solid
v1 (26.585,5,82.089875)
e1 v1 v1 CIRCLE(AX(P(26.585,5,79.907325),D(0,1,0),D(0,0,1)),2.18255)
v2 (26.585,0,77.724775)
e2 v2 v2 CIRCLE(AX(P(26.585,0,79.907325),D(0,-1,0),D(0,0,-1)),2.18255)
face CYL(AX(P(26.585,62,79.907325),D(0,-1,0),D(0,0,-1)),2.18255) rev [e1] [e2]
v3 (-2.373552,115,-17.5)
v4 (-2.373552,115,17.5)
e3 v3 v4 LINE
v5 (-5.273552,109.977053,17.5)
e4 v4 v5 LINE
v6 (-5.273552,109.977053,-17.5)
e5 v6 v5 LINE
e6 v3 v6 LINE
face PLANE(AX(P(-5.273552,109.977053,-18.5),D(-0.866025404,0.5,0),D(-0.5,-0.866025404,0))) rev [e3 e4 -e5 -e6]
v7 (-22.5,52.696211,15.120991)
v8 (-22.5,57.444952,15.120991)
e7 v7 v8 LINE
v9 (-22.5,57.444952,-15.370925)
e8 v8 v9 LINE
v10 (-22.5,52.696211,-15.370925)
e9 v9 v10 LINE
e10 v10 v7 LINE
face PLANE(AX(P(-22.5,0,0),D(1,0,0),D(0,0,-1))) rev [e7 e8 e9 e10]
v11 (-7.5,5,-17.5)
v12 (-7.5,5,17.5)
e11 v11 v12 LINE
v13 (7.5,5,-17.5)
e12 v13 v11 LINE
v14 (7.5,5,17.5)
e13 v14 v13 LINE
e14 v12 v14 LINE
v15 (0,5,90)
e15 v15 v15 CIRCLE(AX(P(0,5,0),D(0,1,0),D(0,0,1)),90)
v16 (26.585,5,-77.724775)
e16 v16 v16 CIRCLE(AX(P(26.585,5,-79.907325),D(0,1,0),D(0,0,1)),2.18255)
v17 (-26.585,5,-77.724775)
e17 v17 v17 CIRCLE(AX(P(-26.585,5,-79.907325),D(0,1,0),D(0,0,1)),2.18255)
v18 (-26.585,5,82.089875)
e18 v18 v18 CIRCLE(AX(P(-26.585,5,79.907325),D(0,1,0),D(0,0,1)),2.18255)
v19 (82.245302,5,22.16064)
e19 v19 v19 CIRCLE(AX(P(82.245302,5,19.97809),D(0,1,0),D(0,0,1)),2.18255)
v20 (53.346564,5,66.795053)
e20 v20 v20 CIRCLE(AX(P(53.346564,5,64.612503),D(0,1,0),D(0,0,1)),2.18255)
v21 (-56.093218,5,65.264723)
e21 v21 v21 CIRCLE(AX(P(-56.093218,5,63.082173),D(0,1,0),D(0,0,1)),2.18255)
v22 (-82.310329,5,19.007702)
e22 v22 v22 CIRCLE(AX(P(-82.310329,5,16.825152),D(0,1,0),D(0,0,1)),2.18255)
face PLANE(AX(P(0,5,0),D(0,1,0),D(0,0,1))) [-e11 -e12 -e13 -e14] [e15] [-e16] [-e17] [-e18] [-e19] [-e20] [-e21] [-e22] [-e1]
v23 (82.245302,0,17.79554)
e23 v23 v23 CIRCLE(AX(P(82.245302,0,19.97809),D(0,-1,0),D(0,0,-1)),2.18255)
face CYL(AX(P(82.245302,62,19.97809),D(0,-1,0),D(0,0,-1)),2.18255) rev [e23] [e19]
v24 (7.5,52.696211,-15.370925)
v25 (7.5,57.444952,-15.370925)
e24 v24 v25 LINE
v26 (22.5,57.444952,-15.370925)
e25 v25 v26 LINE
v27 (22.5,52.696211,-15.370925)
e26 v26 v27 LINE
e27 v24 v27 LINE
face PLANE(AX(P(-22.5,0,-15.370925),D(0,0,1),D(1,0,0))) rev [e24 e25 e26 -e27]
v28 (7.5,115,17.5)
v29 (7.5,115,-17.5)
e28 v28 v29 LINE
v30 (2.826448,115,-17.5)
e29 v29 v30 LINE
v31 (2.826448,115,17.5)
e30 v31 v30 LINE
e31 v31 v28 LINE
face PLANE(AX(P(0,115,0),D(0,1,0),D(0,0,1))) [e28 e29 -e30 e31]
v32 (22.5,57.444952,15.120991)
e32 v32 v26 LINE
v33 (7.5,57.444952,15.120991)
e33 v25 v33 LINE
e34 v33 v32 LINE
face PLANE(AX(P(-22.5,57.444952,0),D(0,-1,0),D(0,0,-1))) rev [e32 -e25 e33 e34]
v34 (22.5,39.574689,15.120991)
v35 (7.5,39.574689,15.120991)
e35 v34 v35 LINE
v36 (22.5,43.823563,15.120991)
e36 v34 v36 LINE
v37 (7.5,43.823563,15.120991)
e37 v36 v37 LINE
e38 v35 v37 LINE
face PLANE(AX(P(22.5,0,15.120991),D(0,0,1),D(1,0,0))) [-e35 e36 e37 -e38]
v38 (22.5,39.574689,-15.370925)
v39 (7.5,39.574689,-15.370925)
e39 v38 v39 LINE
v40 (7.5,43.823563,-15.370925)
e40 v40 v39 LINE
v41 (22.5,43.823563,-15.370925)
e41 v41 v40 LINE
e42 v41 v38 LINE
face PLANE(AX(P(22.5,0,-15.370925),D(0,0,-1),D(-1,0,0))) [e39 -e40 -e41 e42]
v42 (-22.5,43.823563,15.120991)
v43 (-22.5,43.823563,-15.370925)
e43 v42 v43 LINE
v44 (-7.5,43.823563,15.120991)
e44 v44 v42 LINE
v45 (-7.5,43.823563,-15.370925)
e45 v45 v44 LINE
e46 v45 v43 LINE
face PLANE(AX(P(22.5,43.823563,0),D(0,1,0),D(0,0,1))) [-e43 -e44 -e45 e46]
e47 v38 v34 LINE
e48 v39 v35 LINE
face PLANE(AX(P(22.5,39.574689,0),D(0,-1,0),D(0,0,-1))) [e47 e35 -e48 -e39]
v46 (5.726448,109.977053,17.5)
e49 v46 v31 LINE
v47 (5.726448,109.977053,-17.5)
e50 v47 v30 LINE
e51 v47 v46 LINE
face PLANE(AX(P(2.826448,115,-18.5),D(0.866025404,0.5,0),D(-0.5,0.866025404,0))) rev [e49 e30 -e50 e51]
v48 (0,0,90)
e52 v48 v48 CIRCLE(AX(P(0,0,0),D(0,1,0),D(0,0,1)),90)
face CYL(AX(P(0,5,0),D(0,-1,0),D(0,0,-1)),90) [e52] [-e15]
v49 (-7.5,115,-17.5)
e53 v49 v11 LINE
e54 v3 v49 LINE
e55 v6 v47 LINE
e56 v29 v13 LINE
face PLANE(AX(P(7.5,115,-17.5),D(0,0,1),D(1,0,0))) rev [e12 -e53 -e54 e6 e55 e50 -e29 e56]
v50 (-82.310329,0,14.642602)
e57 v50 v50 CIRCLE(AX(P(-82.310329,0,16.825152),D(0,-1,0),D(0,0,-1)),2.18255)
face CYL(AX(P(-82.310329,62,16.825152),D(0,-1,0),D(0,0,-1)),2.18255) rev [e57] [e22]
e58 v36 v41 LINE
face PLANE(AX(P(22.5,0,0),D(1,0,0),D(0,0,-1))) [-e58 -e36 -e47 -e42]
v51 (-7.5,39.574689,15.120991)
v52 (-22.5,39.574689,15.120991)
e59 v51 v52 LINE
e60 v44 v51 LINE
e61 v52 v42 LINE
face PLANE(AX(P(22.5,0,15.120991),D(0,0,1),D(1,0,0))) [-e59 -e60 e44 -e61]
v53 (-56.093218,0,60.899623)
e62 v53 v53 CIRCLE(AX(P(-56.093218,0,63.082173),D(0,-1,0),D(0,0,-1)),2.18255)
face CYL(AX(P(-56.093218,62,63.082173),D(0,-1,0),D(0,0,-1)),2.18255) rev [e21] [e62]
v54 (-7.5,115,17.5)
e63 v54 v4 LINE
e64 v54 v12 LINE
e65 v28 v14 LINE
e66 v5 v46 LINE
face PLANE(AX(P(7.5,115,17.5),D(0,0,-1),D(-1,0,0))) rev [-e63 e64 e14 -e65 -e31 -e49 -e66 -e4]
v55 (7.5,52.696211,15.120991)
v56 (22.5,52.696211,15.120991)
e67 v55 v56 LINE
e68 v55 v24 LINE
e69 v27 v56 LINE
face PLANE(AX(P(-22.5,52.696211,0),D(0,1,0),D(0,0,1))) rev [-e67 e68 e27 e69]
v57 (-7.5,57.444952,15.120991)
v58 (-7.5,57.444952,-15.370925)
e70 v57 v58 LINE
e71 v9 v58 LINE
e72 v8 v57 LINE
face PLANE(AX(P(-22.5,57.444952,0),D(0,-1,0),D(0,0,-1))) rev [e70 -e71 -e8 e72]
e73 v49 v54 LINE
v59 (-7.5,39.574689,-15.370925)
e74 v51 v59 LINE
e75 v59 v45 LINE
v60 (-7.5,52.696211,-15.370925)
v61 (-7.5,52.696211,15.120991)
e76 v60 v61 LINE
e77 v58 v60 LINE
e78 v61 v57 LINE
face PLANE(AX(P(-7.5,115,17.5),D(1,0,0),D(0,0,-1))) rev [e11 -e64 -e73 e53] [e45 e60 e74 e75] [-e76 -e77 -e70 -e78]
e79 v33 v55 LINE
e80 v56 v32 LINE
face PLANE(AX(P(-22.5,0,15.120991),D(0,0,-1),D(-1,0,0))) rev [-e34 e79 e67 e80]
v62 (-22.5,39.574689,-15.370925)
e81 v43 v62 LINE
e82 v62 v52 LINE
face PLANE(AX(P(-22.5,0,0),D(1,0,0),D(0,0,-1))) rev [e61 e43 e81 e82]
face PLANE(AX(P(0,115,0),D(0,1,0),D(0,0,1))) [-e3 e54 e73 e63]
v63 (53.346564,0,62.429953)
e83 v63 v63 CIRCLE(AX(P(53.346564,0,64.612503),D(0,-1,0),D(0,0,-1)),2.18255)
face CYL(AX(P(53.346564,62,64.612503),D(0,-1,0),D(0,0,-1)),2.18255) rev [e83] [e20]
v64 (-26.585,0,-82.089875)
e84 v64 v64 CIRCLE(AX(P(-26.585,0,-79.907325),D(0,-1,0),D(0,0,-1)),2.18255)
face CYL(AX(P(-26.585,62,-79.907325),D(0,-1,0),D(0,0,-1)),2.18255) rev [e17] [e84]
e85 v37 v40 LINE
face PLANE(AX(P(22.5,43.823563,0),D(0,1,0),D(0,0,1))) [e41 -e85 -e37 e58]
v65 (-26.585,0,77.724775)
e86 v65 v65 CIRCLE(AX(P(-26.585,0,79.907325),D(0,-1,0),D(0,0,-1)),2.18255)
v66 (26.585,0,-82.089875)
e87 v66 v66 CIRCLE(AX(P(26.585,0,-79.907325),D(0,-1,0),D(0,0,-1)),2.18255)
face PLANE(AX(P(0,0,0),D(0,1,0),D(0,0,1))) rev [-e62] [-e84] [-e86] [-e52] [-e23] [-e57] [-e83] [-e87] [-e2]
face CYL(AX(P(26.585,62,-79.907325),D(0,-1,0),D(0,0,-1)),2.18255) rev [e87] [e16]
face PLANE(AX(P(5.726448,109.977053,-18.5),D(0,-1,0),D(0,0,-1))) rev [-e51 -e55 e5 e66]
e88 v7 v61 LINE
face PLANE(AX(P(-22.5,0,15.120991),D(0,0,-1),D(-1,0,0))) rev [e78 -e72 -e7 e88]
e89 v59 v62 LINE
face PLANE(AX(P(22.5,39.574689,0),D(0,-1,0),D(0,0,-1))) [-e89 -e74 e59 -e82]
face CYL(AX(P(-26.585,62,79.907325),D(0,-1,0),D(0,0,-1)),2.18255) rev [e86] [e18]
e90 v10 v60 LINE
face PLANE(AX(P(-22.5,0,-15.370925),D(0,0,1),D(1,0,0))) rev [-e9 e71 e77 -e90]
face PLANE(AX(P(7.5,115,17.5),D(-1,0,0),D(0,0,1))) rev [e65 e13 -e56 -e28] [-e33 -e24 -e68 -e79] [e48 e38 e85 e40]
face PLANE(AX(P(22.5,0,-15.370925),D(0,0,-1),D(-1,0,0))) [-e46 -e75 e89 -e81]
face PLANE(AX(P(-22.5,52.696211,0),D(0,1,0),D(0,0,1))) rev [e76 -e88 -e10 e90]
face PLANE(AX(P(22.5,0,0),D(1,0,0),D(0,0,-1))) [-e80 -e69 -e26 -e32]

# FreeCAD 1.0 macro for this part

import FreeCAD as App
import Part
import Sketcher

V = App.Vector
Q = App.Units.Quantity

doc = App.newDocument("Part")
body = doc.addObject("PartDesign::Body", "Body")

# Sketch on XZ plane
sketch1 = body.newObject("Sketcher::SketchObject", "Sketch")
sketch1.AttachmentSupport = (doc.getObject("XZ_Plane"), [""])
sketch1.MapMode = "FlatFace"
sketch1.addGeometry(Part.Circle(V(0, 0, 0), V(0, 0, 1), 90), False)
sketch1.addConstraint([
    Sketcher.Constraint("Coincident", 0, 3, -1, 1),
    Sketcher.Constraint("Diameter", 0, 180.0),
])
pad1 = body.newObject("PartDesign::Pad", "Pad")
pad1.Profile = sketch1
pad1.Length = 5
pad1.Reversed = True

# Sketch on XZ plane
sketch2 = body.newObject("Sketcher::SketchObject", "Sketch001")
sketch2.AttachmentSupport = (doc.getObject("XZ_Plane"), [""])
sketch2.MapMode = "FlatFace"
sketch2.AttachmentOffset = App.Placement(V(0, 0, -5), App.Rotation())
sketch2.addGeometry([
    Part.LineSegment(V(-8, -18, 0), V(-8, 18, 0)),
    Part.LineSegment(V(-8, 18, 0), V(8, 18, 0)),
    Part.LineSegment(V(8, 18, 0), V(8, -18, 0)),
    Part.LineSegment(V(8, -18, 0), V(-8, -18, 0)),
], False)
sketch2.addConstraint([
    Sketcher.Constraint("Coincident", 0, 2, 1, 1),
    Sketcher.Constraint("Coincident", 1, 2, 2, 1),
    Sketcher.Constraint("Coincident", 2, 2, 3, 1),
    Sketcher.Constraint("Coincident", 3, 2, 0, 1),
    Sketcher.Constraint("Vertical", 0),
    Sketcher.Constraint("Horizontal", 1),
    Sketcher.Constraint("Vertical", 2),
    Sketcher.Constraint("Horizontal", 3),
    Sketcher.Constraint("Symmetric", 0, 2, 2, 2, -1, 1),
    Sketcher.Constraint("DistanceX", 1, 1, 1, 2, 15.0),
    Sketcher.Constraint("DistanceY", 0, 1, 0, 2, 35.0),
])
pad2 = body.newObject("PartDesign::Pad", "Pad001")
pad2.Profile = sketch2
pad2.Length = 110
pad2.Reversed = True

# Sketch on XY plane
sketch3 = body.newObject("Sketcher::SketchObject", "Sketch002")
sketch3.AttachmentSupport = (doc.getObject("XY_Plane"), [""])
sketch3.MapMode = "FlatFace"
sketch3.AttachmentOffset = App.Placement(V(0, 0, 17.5), App.Rotation())
sketch3.addGeometry([
    Part.LineSegment(V(3, 115, 0), V(-2, 115, 0)),
    Part.LineSegment(V(-2, 115, 0), V(-5, 110, 0)),
    Part.LineSegment(V(-5, 110, 0), V(6, 110, 0)),
    Part.LineSegment(V(6, 110, 0), V(3, 115, 0)),
], False)
sketch3.addConstraint([
    Sketcher.Constraint("Coincident", 0, 2, 1, 1),
    Sketcher.Constraint("Coincident", 1, 2, 2, 1),
    Sketcher.Constraint("Coincident", 2, 2, 3, 1),
    Sketcher.Constraint("Coincident", 3, 2, 0, 1),
    Sketcher.Constraint("Horizontal", 0),
    Sketcher.Constraint("Horizontal", 2),
    Sketcher.Constraint("Equal", 1, 3),
    Sketcher.Constraint("DistanceX", 2, 1, 2, 2, 11.0),
    Sketcher.Constraint("Angle", 1, Q("-120 deg")),
    Sketcher.Constraint("DistanceX", 0, 2, 0, 1, 5.2),
    Sketcher.Constraint("DistanceY", -1, 1, 0, 2, 115.0),
    Sketcher.Constraint("DistanceX", 0, 2, -1, 1, 2.373552),
])
pocket1 = body.newObject("PartDesign::Pocket", "Pocket")
pocket1.Profile = sketch3
pocket1.Length = 36

# Sketch on XZ plane
sketch4 = body.newObject("Sketcher::SketchObject", "Sketch003")
sketch4.AttachmentSupport = (doc.getObject("XZ_Plane"), [""])
sketch4.MapMode = "FlatFace"
sketch4.addGeometry([
    Part.Circle(V(26.6, -79.9, 0), V(0, 0, 1), 2.2),  # 0
    Part.Circle(V(-26.6, -79.9, 0), V(0, 0, 1), 2.2),  # 1
    Part.Circle(V(-82.3, 16.8, 0), V(0, 0, 1), 2.2),  # 2
    Part.Circle(V(-56.1, 63.1, 0), V(0, 0, 1), 2.2),  # 3
    Part.Circle(V(-26.6, 79.9, 0), V(0, 0, 1), 2.2),  # 4
    Part.Circle(V(26.6, 79.9, 0), V(0, 0, 1), 2.2),  # 5
    Part.Circle(V(53.3, 64.6, 0), V(0, 0, 1), 2.2),  # 6
    Part.Circle(V(82.2, 20, 0), V(0, 0, 1), 2.2),  # 7
], False)
sketch4.addConstraint([
    Sketcher.Constraint("Equal", 0, 1),
    Sketcher.Constraint("Equal", 1, 2),
    Sketcher.Constraint("Equal", 2, 3),
    Sketcher.Constraint("Equal", 3, 4),
    Sketcher.Constraint("Equal", 4, 5),
    Sketcher.Constraint("Equal", 5, 6),
    Sketcher.Constraint("Equal", 6, 7),
    Sketcher.Constraint("Symmetric", 0, 3, 4, 3, -1, 1),
    Sketcher.Constraint("Symmetric", 1, 3, 5, 3, -1, 1),
    Sketcher.Constraint("Symmetric", 0, 3, 1, 3, -2),
    Sketcher.Constraint("Diameter", 0, 4.3651),
    Sketcher.Constraint("DistanceX", 1, 3, 0, 3, 53.17),
    Sketcher.Constraint("DistanceY", 1, 3, 3, 3, 142.989498),
    Sketcher.Constraint("DistanceX", 2, 3, -1, 1, 82.310329),
    Sketcher.Constraint("DistanceX", 3, 3, -1, 1, 56.093218),
    Sketcher.Constraint("DistanceY", -1, 1, 7, 3, 19.97809),
    Sketcher.Constraint("DistanceY", 2, 3, 3, 3, 46.257021),
    Sketcher.Constraint("DistanceY", 1, 3, 4, 3, 159.814651),
    Sketcher.Constraint("DistanceX", 3, 3, 6, 3, 109.439782),
    Sketcher.Constraint("DistanceY", 3, 3, 6, 3, 1.53033),
    Sketcher.Constraint("DistanceX", 6, 3, 7, 3, 28.898738),
])
pocket2 = body.newObject("PartDesign::Pocket", "Pocket001")
pocket2.Profile = sketch4
pocket2.Length = 62

# Sketch on YZ plane
sketch5 = body.newObject("Sketcher::SketchObject", "Sketch004")
sketch5.AttachmentSupport = (doc.getObject("YZ_Plane"), [""])
sketch5.MapMode = "FlatFace"
sketch5.AttachmentOffset = App.Placement(V(0, 0, 7.5), App.Rotation())
sketch5.addGeometry([
    Part.LineSegment(V(57.4, 15.1, 0), V(52.7, 15.1, 0)),  # 0
    Part.LineSegment(V(52.7, 15.1, 0), V(52.7, -15.4, 0)),  # 1
    Part.LineSegment(V(52.7, -15.4, 0), V(57.4, -15.4, 0)),  # 2
    Part.LineSegment(V(57.4, -15.4, 0), V(57.4, 15.1, 0)),  # 3
    Part.LineSegment(V(43.8, 15.1, 0), V(39.6, 15.1, 0)),  # 4
    Part.LineSegment(V(39.6, 15.1, 0), V(39.6, -15.4, 0)),  # 5
    Part.LineSegment(V(39.6, -15.4, 0), V(43.8, -15.4, 0)),  # 6
    Part.LineSegment(V(43.8, -15.4, 0), V(43.8, 15.1, 0)),  # 7
], False)
sketch5.addConstraint([
    Sketcher.Constraint("Coincident", 0, 2, 1, 1),
    Sketcher.Constraint("Coincident", 1, 2, 2, 1),
    Sketcher.Constraint("Coincident", 2, 2, 3, 1),
    Sketcher.Constraint("Coincident", 3, 2, 0, 1),
    Sketcher.Constraint("Coincident", 4, 2, 5, 1),
    Sketcher.Constraint("Coincident", 5, 2, 6, 1),
    Sketcher.Constraint("Coincident", 6, 2, 7, 1),
    Sketcher.Constraint("Coincident", 7, 2, 4, 1),
    Sketcher.Constraint("Horizontal", 0),
    Sketcher.Constraint("Vertical", 1),
    Sketcher.Constraint("Horizontal", 2),
    Sketcher.Constraint("Vertical", 3),
    Sketcher.Constraint("Horizontal", 4),
    Sketcher.Constraint("Vertical", 5),
    Sketcher.Constraint("Horizontal", 6),
    Sketcher.Constraint("Vertical", 7),
    Sketcher.Constraint("Horizontal", 3, 2, 4, 2),
    Sketcher.Constraint("Horizontal", 2, 2, 5, 2),
    Sketcher.Constraint("DistanceX", 0, 2, 0, 1, 4.748741),
    Sketcher.Constraint("DistanceX", 4, 2, 4, 1, 4.248874),
    Sketcher.Constraint("DistanceY", 1, 2, 1, 1, 30.491916),
    Sketcher.Constraint("DistanceX", -1, 1, 0, 2, 52.696211),
    Sketcher.Constraint("DistanceY", -1, 1, 0, 2, 15.120991),
    Sketcher.Constraint("DistanceX", -1, 1, 4, 2, 39.574689),
])
pad3 = body.newObject("PartDesign::Pad", "Pad002")
pad3.Profile = sketch5
pad3.Type = "TwoLengths"
pad3.Length = 15
pad3.Length2 = 30

doc.recompute()
